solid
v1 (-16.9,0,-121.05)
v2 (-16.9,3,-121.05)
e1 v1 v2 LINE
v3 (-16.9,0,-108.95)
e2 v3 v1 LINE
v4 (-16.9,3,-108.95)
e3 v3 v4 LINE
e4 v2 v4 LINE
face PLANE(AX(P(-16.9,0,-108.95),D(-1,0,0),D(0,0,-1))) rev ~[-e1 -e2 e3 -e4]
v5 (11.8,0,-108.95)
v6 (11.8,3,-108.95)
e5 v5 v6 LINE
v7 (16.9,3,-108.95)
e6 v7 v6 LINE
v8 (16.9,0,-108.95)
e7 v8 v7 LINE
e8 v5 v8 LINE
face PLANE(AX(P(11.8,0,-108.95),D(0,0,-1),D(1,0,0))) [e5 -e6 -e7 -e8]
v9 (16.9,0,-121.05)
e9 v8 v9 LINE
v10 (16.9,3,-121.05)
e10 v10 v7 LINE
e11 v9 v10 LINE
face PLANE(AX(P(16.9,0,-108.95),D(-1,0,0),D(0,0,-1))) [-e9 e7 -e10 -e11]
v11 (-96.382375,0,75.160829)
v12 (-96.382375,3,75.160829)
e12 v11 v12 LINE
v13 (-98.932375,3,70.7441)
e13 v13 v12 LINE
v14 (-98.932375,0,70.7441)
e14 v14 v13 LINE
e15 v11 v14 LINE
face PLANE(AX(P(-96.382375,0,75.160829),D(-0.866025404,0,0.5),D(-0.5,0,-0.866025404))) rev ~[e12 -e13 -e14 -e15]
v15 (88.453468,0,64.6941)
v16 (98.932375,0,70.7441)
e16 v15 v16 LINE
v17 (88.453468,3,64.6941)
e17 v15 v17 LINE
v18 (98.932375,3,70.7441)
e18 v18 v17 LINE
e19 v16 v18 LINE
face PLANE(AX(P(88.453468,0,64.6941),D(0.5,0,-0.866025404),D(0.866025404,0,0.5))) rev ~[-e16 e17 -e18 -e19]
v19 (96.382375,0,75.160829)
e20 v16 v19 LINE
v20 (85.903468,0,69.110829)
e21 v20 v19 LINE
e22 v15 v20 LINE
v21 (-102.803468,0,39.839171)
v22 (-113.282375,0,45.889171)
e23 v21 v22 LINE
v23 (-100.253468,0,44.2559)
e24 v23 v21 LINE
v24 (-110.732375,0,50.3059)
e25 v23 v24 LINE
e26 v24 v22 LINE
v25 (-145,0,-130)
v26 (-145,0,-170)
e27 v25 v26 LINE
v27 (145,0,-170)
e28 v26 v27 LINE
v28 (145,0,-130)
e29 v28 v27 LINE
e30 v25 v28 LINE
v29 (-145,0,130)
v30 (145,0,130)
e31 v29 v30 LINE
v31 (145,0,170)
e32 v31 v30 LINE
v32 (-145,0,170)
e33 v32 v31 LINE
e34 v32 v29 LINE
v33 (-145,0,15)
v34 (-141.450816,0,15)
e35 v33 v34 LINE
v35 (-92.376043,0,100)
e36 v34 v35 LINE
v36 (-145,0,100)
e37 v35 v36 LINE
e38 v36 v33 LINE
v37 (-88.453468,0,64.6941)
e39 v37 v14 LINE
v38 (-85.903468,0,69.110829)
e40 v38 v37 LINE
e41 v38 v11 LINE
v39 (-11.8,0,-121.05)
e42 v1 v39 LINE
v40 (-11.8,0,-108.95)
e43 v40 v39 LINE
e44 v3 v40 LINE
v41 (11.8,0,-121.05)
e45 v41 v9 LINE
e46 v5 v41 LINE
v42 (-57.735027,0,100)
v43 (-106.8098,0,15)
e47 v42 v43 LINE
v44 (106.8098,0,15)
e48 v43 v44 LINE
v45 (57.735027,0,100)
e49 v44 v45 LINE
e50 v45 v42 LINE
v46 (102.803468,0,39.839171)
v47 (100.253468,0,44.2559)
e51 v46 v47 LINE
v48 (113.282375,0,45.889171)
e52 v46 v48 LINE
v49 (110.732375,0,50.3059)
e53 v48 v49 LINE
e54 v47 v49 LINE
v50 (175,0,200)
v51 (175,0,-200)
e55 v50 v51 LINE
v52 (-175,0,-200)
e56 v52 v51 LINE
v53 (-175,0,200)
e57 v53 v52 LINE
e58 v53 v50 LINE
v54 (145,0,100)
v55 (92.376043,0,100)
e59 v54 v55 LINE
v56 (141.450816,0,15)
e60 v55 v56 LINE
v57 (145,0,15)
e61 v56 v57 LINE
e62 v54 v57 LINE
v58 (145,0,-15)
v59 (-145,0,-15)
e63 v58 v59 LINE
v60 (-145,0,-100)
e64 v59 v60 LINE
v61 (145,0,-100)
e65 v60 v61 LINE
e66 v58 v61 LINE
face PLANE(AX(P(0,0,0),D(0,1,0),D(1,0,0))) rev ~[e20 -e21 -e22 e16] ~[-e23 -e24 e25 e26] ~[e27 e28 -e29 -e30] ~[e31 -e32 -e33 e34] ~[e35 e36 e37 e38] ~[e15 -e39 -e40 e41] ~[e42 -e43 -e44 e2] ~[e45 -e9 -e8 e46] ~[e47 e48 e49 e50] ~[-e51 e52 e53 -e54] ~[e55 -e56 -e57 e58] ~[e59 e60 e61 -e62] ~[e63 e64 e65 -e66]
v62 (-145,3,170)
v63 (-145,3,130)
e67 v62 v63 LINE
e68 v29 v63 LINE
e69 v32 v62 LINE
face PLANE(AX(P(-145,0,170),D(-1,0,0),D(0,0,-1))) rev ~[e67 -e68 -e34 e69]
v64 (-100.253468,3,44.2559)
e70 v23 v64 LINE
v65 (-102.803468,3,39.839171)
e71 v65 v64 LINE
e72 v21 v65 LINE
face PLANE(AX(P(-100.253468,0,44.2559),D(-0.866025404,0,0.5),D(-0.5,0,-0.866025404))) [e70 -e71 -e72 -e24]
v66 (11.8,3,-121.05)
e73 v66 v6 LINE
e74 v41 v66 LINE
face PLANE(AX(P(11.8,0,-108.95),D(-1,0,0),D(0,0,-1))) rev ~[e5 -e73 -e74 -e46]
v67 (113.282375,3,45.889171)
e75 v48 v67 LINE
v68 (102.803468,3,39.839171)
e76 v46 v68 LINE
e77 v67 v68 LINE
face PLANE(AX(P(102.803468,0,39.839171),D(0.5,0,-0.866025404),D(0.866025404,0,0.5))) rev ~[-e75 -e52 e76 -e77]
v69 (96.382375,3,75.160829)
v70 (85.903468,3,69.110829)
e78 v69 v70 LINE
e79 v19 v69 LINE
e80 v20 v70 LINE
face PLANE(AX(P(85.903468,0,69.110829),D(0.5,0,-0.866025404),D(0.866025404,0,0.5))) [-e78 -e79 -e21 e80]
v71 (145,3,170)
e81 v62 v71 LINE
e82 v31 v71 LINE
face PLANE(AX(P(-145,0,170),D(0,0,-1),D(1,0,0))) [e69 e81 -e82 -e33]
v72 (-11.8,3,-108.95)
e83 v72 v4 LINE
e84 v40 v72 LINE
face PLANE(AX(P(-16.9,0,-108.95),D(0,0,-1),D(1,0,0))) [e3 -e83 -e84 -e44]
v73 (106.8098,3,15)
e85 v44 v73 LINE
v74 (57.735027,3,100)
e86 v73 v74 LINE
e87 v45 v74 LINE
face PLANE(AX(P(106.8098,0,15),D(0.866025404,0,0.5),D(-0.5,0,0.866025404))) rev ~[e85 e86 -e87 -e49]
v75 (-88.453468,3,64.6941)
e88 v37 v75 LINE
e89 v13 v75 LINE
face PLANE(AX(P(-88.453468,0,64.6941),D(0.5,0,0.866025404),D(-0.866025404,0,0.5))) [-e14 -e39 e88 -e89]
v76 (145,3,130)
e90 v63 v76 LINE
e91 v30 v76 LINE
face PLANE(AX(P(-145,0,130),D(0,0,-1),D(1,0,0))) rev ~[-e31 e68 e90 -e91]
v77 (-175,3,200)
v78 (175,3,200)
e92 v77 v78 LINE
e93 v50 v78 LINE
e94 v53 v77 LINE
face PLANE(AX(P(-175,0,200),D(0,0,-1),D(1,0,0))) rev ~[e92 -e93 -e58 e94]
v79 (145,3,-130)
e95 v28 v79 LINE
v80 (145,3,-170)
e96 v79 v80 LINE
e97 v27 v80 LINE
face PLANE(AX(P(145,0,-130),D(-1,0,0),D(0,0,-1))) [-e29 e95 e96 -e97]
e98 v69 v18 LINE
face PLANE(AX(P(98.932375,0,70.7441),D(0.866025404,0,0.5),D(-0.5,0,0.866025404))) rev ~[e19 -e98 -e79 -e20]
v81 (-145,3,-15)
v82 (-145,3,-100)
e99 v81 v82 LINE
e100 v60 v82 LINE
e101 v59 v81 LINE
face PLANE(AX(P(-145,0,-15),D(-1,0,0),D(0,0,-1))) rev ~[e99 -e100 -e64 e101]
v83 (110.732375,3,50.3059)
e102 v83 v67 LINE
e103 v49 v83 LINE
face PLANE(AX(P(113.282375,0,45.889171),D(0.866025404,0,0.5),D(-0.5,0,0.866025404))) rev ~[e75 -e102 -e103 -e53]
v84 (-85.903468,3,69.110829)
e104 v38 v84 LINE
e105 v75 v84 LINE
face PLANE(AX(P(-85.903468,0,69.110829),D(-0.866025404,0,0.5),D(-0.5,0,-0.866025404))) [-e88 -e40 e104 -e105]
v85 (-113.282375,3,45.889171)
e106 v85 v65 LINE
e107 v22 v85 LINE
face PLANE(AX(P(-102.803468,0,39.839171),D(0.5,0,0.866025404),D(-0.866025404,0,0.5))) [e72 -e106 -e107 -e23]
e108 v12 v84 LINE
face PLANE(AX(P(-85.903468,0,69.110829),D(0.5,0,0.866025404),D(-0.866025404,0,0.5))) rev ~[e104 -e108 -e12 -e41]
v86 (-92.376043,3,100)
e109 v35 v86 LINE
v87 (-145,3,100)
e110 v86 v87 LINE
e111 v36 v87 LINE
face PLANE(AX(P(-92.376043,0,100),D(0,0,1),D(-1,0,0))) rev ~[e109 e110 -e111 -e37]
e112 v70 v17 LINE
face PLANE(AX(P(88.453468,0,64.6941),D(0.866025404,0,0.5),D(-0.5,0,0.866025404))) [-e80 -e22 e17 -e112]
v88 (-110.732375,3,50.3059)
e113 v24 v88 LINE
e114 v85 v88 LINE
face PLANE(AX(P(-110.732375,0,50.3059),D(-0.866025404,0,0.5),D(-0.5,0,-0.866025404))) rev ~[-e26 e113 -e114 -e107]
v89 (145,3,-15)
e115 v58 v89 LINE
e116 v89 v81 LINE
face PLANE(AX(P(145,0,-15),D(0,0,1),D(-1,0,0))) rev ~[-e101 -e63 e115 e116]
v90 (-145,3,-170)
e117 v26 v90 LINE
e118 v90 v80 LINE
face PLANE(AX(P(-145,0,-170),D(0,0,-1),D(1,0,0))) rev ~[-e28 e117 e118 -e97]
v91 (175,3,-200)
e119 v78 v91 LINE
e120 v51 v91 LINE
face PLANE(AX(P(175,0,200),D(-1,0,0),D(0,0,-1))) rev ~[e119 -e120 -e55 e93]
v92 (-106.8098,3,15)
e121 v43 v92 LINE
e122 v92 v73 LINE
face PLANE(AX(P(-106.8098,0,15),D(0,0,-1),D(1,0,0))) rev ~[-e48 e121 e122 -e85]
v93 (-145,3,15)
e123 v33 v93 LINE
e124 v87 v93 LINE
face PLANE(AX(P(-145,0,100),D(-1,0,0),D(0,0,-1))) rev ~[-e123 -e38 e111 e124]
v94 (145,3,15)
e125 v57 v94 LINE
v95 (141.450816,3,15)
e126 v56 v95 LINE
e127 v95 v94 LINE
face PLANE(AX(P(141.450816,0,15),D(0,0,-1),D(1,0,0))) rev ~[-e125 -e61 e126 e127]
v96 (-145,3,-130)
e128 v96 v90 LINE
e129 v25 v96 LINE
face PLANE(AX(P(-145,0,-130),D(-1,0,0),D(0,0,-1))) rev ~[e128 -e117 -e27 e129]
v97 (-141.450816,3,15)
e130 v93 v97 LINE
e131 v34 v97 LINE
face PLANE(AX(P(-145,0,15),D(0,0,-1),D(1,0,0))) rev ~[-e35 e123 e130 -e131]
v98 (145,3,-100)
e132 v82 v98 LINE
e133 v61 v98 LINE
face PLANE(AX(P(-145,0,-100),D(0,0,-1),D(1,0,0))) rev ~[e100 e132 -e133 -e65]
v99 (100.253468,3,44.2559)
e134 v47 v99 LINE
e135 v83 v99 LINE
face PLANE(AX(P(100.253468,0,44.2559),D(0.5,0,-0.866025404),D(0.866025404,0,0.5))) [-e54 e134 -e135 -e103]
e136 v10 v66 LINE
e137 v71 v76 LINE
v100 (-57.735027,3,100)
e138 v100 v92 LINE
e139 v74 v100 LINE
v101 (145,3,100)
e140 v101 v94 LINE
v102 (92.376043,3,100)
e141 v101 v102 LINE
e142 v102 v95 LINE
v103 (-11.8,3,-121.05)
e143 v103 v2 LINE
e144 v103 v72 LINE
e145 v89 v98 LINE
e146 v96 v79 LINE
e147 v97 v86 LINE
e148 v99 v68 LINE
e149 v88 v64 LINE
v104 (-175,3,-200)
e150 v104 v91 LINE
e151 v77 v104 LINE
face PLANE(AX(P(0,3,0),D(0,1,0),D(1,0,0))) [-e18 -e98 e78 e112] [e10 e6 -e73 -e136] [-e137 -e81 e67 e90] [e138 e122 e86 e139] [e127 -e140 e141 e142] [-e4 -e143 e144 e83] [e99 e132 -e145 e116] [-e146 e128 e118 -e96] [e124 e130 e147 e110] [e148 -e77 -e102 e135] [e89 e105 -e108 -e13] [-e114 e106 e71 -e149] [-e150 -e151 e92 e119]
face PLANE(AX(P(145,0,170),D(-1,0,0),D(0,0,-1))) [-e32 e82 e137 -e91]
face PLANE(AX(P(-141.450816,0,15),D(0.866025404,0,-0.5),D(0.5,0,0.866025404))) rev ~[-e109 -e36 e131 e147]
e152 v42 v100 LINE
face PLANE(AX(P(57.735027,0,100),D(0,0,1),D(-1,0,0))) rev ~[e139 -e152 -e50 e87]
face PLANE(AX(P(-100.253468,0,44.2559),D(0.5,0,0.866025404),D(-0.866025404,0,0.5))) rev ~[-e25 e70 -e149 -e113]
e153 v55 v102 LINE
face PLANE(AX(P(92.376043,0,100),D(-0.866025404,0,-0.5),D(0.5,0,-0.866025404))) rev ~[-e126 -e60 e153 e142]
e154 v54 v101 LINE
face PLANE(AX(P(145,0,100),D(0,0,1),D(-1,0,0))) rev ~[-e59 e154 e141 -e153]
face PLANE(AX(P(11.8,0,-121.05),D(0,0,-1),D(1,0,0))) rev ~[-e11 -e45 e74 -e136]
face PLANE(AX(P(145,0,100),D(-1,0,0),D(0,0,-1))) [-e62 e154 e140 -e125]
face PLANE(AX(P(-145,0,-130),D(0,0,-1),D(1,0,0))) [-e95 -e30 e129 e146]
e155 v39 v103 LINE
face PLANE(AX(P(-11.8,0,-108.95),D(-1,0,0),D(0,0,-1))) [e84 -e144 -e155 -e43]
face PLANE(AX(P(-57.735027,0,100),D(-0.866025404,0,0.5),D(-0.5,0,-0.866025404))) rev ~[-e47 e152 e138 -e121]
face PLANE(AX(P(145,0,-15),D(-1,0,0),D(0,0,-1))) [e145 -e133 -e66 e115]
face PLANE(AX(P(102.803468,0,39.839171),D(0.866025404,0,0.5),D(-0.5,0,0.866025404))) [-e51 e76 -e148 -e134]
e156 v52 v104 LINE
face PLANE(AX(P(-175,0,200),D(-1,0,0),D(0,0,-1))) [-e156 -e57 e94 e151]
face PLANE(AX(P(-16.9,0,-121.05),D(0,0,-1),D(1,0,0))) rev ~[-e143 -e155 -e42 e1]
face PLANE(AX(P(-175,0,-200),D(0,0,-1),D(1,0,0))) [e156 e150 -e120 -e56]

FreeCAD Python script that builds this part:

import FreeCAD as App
import Part
import Sketcher

V = App.Vector
Q = App.Units.Quantity

doc = App.newDocument("Part")
body = doc.addObject("PartDesign::Body", "Body")

# Sketch on XZ plane
sketch1 = body.newObject("Sketcher::SketchObject", "Sketch")
sketch1.AttachmentSupport = (doc.getObject("XZ_Plane"), [""])
sketch1.MapMode = "FlatFace"
sketch1.addGeometry(Part.LineSegment(V(-175, -200, 0), V(-175, 200, 0)), False)
sketch1.addGeometry(Part.LineSegment(V(-175, 200, 0), V(175, 200, 0)), False)
sketch1.addGeometry(Part.LineSegment(V(175, 200, 0), V(175, -200, 0)), False)
sketch1.addGeometry(Part.LineSegment(V(175, -200, 0), V(-175, -200, 0)), False)
sketch1.addGeometry(Part.LineSegment(V(145, 170, 0), V(-145, 170, 0)), False)
sketch1.addGeometry(Part.LineSegment(V(-145, 170, 0), V(-145, 130, 0)), False)
sketch1.addGeometry(Part.LineSegment(V(-145, 130, 0), V(145, 130, 0)), False)
sketch1.addGeometry(Part.LineSegment(V(145, 130, 0), V(145, 170, 0)), False)
sketch1.addGeometry(Part.LineSegment(V(-145, 100, 0), V(-145, 15, 0)), False)
sketch1.addGeometry(Part.LineSegment(V(-145, 15, 0), V(-141.5, 15, 0)), False)
sketch1.addGeometry(Part.LineSegment(V(-141.5, 15, 0), V(-92.4, 100, 0)), False)
sketch1.addGeometry(Part.LineSegment(V(-92.4, 100, 0), V(-145, 100, 0)), False)
sketch1.addGeometry(Part.LineSegment(V(-106.8, 15, 0), V(106.8, 15, 0)), False)
sketch1.addGeometry(Part.LineSegment(V(106.8, 15, 0), V(57.7, 100, 0)), False)
sketch1.addGeometry(Part.LineSegment(V(57.7, 100, 0), V(-57.7, 100, 0)), False)
sketch1.addGeometry(Part.LineSegment(V(-57.7, 100, 0), V(-106.8, 15, 0)), False)
sketch1.addGeometry(Part.LineSegment(V(141.5, 15, 0), V(145, 15, 0)), False)
sketch1.addGeometry(Part.LineSegment(V(145, 15, 0), V(145, 100, 0)), False)
sketch1.addGeometry(Part.LineSegment(V(145, 100, 0), V(92.4, 100, 0)), False)
sketch1.addGeometry(Part.LineSegment(V(92.4, 100, 0), V(141.5, 15, 0)), False)
sketch1.addGeometry(Part.LineSegment(V(-145, -15, 0), V(-145, -100, 0)), False)
sketch1.addGeometry(Part.LineSegment(V(-145, -100, 0), V(145, -100, 0)), False)
sketch1.addGeometry(Part.LineSegment(V(145, -100, 0), V(145, -15, 0)), False)
sketch1.addGeometry(Part.LineSegment(V(145, -15, 0), V(-145, -15, 0)), False)
sketch1.addGeometry(Part.LineSegment(V(145, -170, 0), V(145, -130, 0)), False)
sketch1.addGeometry(Part.LineSegment(V(145, -130, 0), V(-145, -130, 0)), False)
sketch1.addGeometry(Part.LineSegment(V(-145, -130, 0), V(-145, -170, 0)), False)
sketch1.addGeometry(Part.LineSegment(V(-145, -170, 0), V(145, -170, 0)), False)
sketch1.addConstraint(Sketcher.Constraint("Coincident", 0, 2, 1, 1))
sketch1.addConstraint(Sketcher.Constraint("Coincident", 1, 2, 2, 1))
sketch1.addConstraint(Sketcher.Constraint("Coincident", 2, 2, 3, 1))
sketch1.addConstraint(Sketcher.Constraint("Coincident", 3, 2, 0, 1))
sketch1.addConstraint(Sketcher.Constraint("Coincident", 4, 2, 5, 1))
sketch1.addConstraint(Sketcher.Constraint("Coincident", 5, 2, 6, 1))
sketch1.addConstraint(Sketcher.Constraint("Coincident", 6, 2, 7, 1))
sketch1.addConstraint(Sketcher.Constraint("Coincident", 7, 2, 4, 1))
sketch1.addConstraint(Sketcher.Constraint("Coincident", 8, 2, 9, 1))
sketch1.addConstraint(Sketcher.Constraint("Coincident", 9, 2, 10, 1))
sketch1.addConstraint(Sketcher.Constraint("Coincident", 10, 2, 11, 1))
sketch1.addConstraint(Sketcher.Constraint("Coincident", 11, 2, 8, 1))
sketch1.addConstraint(Sketcher.Constraint("Coincident", 12, 2, 13, 1))
sketch1.addConstraint(Sketcher.Constraint("Coincident", 13, 2, 14, 1))
sketch1.addConstraint(Sketcher.Constraint("Coincident", 14, 2, 15, 1))
sketch1.addConstraint(Sketcher.Constraint("Coincident", 15, 2, 12, 1))
sketch1.addConstraint(Sketcher.Constraint("Coincident", 16, 2, 17, 1))
sketch1.addConstraint(Sketcher.Constraint("Coincident", 17, 2, 18, 1))
sketch1.addConstraint(Sketcher.Constraint("Coincident", 18, 2, 19, 1))
sketch1.addConstraint(Sketcher.Constraint("Coincident", 19, 2, 16, 1))
sketch1.addConstraint(Sketcher.Constraint("Coincident", 20, 2, 21, 1))
sketch1.addConstraint(Sketcher.Constraint("Coincident", 21, 2, 22, 1))
sketch1.addConstraint(Sketcher.Constraint("Coincident", 22, 2, 23, 1))
sketch1.addConstraint(Sketcher.Constraint("Coincident", 23, 2, 20, 1))
sketch1.addConstraint(Sketcher.Constraint("Coincident", 24, 2, 25, 1))
sketch1.addConstraint(Sketcher.Constraint("Coincident", 25, 2, 26, 1))
sketch1.addConstraint(Sketcher.Constraint("Coincident", 26, 2, 27, 1))
sketch1.addConstraint(Sketcher.Constraint("Coincident", 27, 2, 24, 1))
sketch1.addConstraint(Sketcher.Constraint("Vertical", 0))
sketch1.addConstraint(Sketcher.Constraint("Horizontal", 1))
sketch1.addConstraint(Sketcher.Constraint("Vertical", 2))
sketch1.addConstraint(Sketcher.Constraint("Horizontal", 3))
sketch1.addConstraint(Sketcher.Constraint("Horizontal", 4))
sketch1.addConstraint(Sketcher.Constraint("Vertical", 5))
sketch1.addConstraint(Sketcher.Constraint("Horizontal", 6))
sketch1.addConstraint(Sketcher.Constraint("Vertical", 7))
sketch1.addConstraint(Sketcher.Constraint("Vertical", 8))
sketch1.addConstraint(Sketcher.Constraint("Horizontal", 9))
sketch1.addConstraint(Sketcher.Constraint("Horizontal", 11))
sketch1.addConstraint(Sketcher.Constraint("Horizontal", 12))
sketch1.addConstraint(Sketcher.Constraint("Horizontal", 14))
sketch1.addConstraint(Sketcher.Constraint("Horizontal", 16))
sketch1.addConstraint(Sketcher.Constraint("Vertical", 17))
sketch1.addConstraint(Sketcher.Constraint("Horizontal", 18))
sketch1.addConstraint(Sketcher.Constraint("Vertical", 20))
sketch1.addConstraint(Sketcher.Constraint("Horizontal", 21))
sketch1.addConstraint(Sketcher.Constraint("Vertical", 22))
sketch1.addConstraint(Sketcher.Constraint("Horizontal", 23))
sketch1.addConstraint(Sketcher.Constraint("Vertical", 24))
sketch1.addConstraint(Sketcher.Constraint("Horizontal", 25))
sketch1.addConstraint(Sketcher.Constraint("Vertical", 26))
sketch1.addConstraint(Sketcher.Constraint("Horizontal", 27))
sketch1.addConstraint(Sketcher.Constraint("Symmetric", 0, 2, 2, 2, -1, 1))
sketch1.addConstraint(Sketcher.Constraint("Symmetric", 17, 2, 20, 2, -1, 1))
sketch1.addConstraint(Sketcher.Constraint("Symmetric", 11, 2, 21, 2, -1, 1))
sketch1.addConstraint(Sketcher.Constraint("Symmetric", 5, 2, 24, 2, -1, 1))
sketch1.addConstraint(Sketcher.Constraint("Symmetric", 7, 2, 26, 2, -1, 1))
sketch1.addConstraint(Sketcher.Constraint("Symmetric", 8, 2, 16, 2, -2))
sketch1.addConstraint(Sketcher.Constraint("Parallel", 10, 15))
sketch1.addConstraint(Sketcher.Constraint("Parallel", 13, 19))
sketch1.addConstraint(Sketcher.Constraint("Horizontal", 9, 2, 12, 2))
sketch1.addConstraint(Sketcher.Constraint("Horizontal", 11, 2, 13, 2))
sketch1.addConstraint(Sketcher.Constraint("Vertical", 5, 2, 8, 2))
sketch1.addConstraint(Sketcher.Constraint("Vertical", 7, 2, 16, 2))
sketch1.addConstraint(Sketcher.Constraint("Equal", 9, 16))
sketch1.addConstraint(Sketcher.Constraint("Equal", 11, 18))
sketch1.addConstraint(Sketcher.Constraint("Equal", 17, 20))
sketch1.addConstraint(Sketcher.Constraint("DistanceX", 1, 1, 1, 2, 350.0))
sketch1.addConstraint(Sketcher.Constraint("DistanceX", 4, 2, 4, 1, 290.0))
sketch1.addConstraint(Sketcher.Constraint("DistanceY", 0, 1, 0, 2, 400.0))
sketch1.addConstraint(Sketcher.Constraint("DistanceY", 5, 2, 5, 1, 40.0))
sketch1.addConstraint(Sketcher.Constraint("DistanceY", 8, 2, 8, 1, 85.0))
sketch1.addConstraint(Sketcher.Constraint("Angle", 10, Q("60 deg")))
sketch1.addConstraint(Sketcher.Constraint("DistanceY", -1, 1, 4, 2, 170.0))
sketch1.addConstraint(Sketcher.Constraint("DistanceY", -1, 1, 8, 2, 15.0))
sketch1.addConstraint(Sketcher.Constraint("DistanceX", 12, 1, 12, 2, 213.6196))
sketch1.addConstraint(Sketcher.Constraint("DistanceX", -1, 1, 12, 2, 106.8098))
sketch1.addConstraint(Sketcher.Constraint("DistanceX", 9, 1, 9, 2, 3.549184))
pad1 = body.newObject("PartDesign::Pad", "Pad")
pad1.Profile = sketch1
pad1.Length = 3
pad1.Reversed = True

# Sketch on XZ plane
sketch2 = body.newObject("Sketcher::SketchObject", "Sketch001")
sketch2.AttachmentSupport = (doc.getObject("XZ_Plane"), [""])
sketch2.MapMode = "FlatFace"
sketch2.addGeometry(Part.LineSegment(V(-17, -121, 0), V(-17, -109, 0)), False)
sketch2.addGeometry(Part.LineSegment(V(-17, -109, 0), V(-12, -109, 0)), False)
sketch2.addGeometry(Part.LineSegment(V(-12, -109, 0), V(-12, -121, 0)), False)
sketch2.addGeometry(Part.LineSegment(V(-12, -121, 0), V(-17, -121, 0)), False)
sketch2.addGeometry(Part.LineSegment(V(12, -121, 0), V(12, -109, 0)), False)
sketch2.addGeometry(Part.LineSegment(V(12, -109, 0), V(17, -109, 0)), False)
sketch2.addGeometry(Part.LineSegment(V(17, -109, 0), V(17, -121, 0)), False)
sketch2.addGeometry(Part.LineSegment(V(17, -121, 0), V(12, -121, 0)), False)
sketch2.addConstraint(Sketcher.Constraint("Coincident", 0, 2, 1, 1))
sketch2.addConstraint(Sketcher.Constraint("Coincident", 1, 2, 2, 1))
sketch2.addConstraint(Sketcher.Constraint("Coincident", 2, 2, 3, 1))
sketch2.addConstraint(Sketcher.Constraint("Coincident", 3, 2, 0, 1))
sketch2.addConstraint(Sketcher.Constraint("Coincident", 4, 2, 5, 1))
sketch2.addConstraint(Sketcher.Constraint("Coincident", 5, 2, 6, 1))
sketch2.addConstraint(Sketcher.Constraint("Coincident", 6, 2, 7, 1))
sketch2.addConstraint(Sketcher.Constraint("Coincident", 7, 2, 4, 1))
sketch2.addConstraint(Sketcher.Constraint("Vertical", 0))
sketch2.addConstraint(Sketcher.Constraint("Horizontal", 1))
sketch2.addConstraint(Sketcher.Constraint("Vertical", 2))
sketch2.addConstraint(Sketcher.Constraint("Horizontal", 3))
sketch2.addConstraint(Sketcher.Constraint("Vertical", 4))
sketch2.addConstraint(Sketcher.Constraint("Horizontal", 5))
sketch2.addConstraint(Sketcher.Constraint("Vertical", 6))
sketch2.addConstraint(Sketcher.Constraint("Horizontal", 7))
sketch2.addConstraint(Sketcher.Constraint("Symmetric", 1, 2, 4, 2, -2))
sketch2.addConstraint(Sketcher.Constraint("Symmetric", 3, 2, 6, 2, -2))
sketch2.addConstraint(Sketcher.Constraint("DistanceX", 1, 1, 1, 2, 5.1))
sketch2.addConstraint(Sketcher.Constraint("DistanceY", 0, 1, 0, 2, 12.1))
sketch2.addConstraint(Sketcher.Constraint("DistanceX", 0, 2, -1, 1, 16.9))
sketch2.addConstraint(Sketcher.Constraint("DistanceY", 0, 2, -1, 1, 108.95))
pocket1 = body.newObject("PartDesign::Pocket", "Pocket")
pocket1.Profile = sketch2
pocket1.Type = "ThroughAll"
doc.recompute()

polarpattern = body.newObject("PartDesign::PolarPattern", "PolarPattern")
polarpattern.Originals = [pocket1]
polarpattern.Axis = (doc.getObject("Y_Axis"), [""])
polarpattern.Angle = 360
polarpattern.Occurrences = 3
body.Tip = polarpattern

doc.recompute()
